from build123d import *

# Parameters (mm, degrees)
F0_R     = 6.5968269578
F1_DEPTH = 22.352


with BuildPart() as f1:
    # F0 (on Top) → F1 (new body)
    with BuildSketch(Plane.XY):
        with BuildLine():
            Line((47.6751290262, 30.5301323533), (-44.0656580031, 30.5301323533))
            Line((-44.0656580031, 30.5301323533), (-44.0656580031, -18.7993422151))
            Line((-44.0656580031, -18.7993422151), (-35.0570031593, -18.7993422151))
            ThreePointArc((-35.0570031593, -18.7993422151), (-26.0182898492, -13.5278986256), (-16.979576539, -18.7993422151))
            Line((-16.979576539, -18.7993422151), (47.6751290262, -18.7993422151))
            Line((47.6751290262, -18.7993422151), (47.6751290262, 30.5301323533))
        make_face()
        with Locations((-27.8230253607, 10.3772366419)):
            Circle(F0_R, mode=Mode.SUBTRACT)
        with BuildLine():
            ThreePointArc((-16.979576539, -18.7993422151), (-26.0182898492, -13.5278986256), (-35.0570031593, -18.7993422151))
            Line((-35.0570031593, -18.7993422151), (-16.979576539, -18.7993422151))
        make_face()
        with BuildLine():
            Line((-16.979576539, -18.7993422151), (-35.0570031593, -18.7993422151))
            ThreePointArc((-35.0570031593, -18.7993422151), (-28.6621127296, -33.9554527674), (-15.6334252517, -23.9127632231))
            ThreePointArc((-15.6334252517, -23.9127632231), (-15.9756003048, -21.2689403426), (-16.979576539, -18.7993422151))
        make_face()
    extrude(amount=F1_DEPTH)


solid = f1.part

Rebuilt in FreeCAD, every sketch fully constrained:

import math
import FreeCAD as App
import Part
import Sketcher
from FreeCAD import Vector
Q = App.Units.Quantity

doc = App.newDocument("Part")
params = doc.addObject("Spreadsheet::Sheet", "Params")
for row, (alias, value) in enumerate([
    ("pad1_length", "0.88 in"),
], start=1):
    params.set(f"A{row}", alias)
    params.set(f"B{row}", "=" + value)
    params.setAlias(f"B{row}", alias)

body = doc.addObject("PartDesign::Body", "Body")

# Sketch on XY plane
sketch1 = body.newObject("Sketcher::SketchObject", "Sketch")
sketch1.AttachmentSupport = (doc.getObject("XY_Plane"), [""])
sketch1.MapMode = "FlatFace"
sketch1.addGeometry(Part.LineSegment(Vector(48, 31, 0), Vector(-44, 31, 0)), False)
sketch1.addGeometry(Part.LineSegment(Vector(-44, 31, 0), Vector(-44, -19, 0)), False)
sketch1.addGeometry(Part.LineSegment(Vector(-44, -19, 0), Vector(-35, -19, 0)), False)
sketch1.addGeometry(Part.ArcOfCircle(Part.Circle(Vector(-26, -24, 0), Vector(0, 0, 1), 10), math.radians(151), math.radians(360)), False)
sketch1.addGeometry(Part.ArcOfCircle(Part.Circle(Vector(-26, -24, 0), Vector(0, 0, 1), 10), math.radians(0), math.radians(29)), False)
sketch1.addGeometry(Part.LineSegment(Vector(-17, -19, 0), Vector(48, -19, 0)), False)
sketch1.addGeometry(Part.LineSegment(Vector(48, -19, 0), Vector(48, 31, 0)), False)
sketch1.addGeometry(Part.Circle(Vector(-28, 10, 0), Vector(0, 0, 1), 7), False)
sketch1.addConstraint(Sketcher.Constraint("Coincident", 0, 2, 1, 1))
sketch1.addConstraint(Sketcher.Constraint("Coincident", 1, 2, 2, 1))
sketch1.addConstraint(Sketcher.Constraint("Coincident", 2, 2, 3, 1))
sketch1.addConstraint(Sketcher.Constraint("Tangent", 3, 2, 4, 1))
sketch1.addConstraint(Sketcher.Constraint("Coincident", 4, 2, 5, 1))
sketch1.addConstraint(Sketcher.Constraint("Coincident", 5, 2, 6, 1))
sketch1.addConstraint(Sketcher.Constraint("Coincident", 6, 2, 0, 1))
sketch1.addConstraint(Sketcher.Constraint("Horizontal", 0))
sketch1.addConstraint(Sketcher.Constraint("Vertical", 1))
sketch1.addConstraint(Sketcher.Constraint("Horizontal", 2))
sketch1.addConstraint(Sketcher.Constraint("Horizontal", 5))
sketch1.addConstraint(Sketcher.Constraint("Vertical", 6))
sketch1.addConstraint(Sketcher.Constraint("Equal", 3, 4))
sketch1.addConstraint(Sketcher.Constraint("Horizontal", 4, 3, 3, 2))
sketch1.addConstraint(Sketcher.Constraint("Horizontal", 2, 2, 4, 2))
sketch1.addConstraint(Sketcher.Constraint("DistanceY", 3, 3, 7, 3, Q("1.35 in")))
sketch1.addConstraint(Sketcher.Constraint("Diameter", 7, 13.193654))
sketch1.addConstraint(Sketcher.Constraint("Radius", 3, 10.384865))
sketch1.addConstraint(Sketcher.Constraint("DistanceX", 7, 3, 3, 2, 12.1896))
sketch1.addConstraint(Sketcher.Constraint("DistanceX", 0, 2, 0, 1, 91.740787))
sketch1.addConstraint(Sketcher.Constraint("DistanceX", 2, 1, 2, 2, 9.008655))
sketch1.addConstraint(Sketcher.Constraint("DistanceX", 5, 1, 5, 2, 64.654706))
sketch1.addConstraint(Sketcher.Constraint("DistanceY", 1, 2, 1, 1, 49.329475))
sketch1.addConstraint(Sketcher.Constraint("DistanceX", 3, 3, -1, 1, 26.01829))
sketch1.addConstraint(Sketcher.Constraint("DistanceY", 3, 3, -1, 1, 23.912763))
pad1 = body.newObject("PartDesign::Pad", "Pad")
pad1.Profile = sketch1
pad1.setExpression("Length", "Params.pad1_length")

doc.recompute()
